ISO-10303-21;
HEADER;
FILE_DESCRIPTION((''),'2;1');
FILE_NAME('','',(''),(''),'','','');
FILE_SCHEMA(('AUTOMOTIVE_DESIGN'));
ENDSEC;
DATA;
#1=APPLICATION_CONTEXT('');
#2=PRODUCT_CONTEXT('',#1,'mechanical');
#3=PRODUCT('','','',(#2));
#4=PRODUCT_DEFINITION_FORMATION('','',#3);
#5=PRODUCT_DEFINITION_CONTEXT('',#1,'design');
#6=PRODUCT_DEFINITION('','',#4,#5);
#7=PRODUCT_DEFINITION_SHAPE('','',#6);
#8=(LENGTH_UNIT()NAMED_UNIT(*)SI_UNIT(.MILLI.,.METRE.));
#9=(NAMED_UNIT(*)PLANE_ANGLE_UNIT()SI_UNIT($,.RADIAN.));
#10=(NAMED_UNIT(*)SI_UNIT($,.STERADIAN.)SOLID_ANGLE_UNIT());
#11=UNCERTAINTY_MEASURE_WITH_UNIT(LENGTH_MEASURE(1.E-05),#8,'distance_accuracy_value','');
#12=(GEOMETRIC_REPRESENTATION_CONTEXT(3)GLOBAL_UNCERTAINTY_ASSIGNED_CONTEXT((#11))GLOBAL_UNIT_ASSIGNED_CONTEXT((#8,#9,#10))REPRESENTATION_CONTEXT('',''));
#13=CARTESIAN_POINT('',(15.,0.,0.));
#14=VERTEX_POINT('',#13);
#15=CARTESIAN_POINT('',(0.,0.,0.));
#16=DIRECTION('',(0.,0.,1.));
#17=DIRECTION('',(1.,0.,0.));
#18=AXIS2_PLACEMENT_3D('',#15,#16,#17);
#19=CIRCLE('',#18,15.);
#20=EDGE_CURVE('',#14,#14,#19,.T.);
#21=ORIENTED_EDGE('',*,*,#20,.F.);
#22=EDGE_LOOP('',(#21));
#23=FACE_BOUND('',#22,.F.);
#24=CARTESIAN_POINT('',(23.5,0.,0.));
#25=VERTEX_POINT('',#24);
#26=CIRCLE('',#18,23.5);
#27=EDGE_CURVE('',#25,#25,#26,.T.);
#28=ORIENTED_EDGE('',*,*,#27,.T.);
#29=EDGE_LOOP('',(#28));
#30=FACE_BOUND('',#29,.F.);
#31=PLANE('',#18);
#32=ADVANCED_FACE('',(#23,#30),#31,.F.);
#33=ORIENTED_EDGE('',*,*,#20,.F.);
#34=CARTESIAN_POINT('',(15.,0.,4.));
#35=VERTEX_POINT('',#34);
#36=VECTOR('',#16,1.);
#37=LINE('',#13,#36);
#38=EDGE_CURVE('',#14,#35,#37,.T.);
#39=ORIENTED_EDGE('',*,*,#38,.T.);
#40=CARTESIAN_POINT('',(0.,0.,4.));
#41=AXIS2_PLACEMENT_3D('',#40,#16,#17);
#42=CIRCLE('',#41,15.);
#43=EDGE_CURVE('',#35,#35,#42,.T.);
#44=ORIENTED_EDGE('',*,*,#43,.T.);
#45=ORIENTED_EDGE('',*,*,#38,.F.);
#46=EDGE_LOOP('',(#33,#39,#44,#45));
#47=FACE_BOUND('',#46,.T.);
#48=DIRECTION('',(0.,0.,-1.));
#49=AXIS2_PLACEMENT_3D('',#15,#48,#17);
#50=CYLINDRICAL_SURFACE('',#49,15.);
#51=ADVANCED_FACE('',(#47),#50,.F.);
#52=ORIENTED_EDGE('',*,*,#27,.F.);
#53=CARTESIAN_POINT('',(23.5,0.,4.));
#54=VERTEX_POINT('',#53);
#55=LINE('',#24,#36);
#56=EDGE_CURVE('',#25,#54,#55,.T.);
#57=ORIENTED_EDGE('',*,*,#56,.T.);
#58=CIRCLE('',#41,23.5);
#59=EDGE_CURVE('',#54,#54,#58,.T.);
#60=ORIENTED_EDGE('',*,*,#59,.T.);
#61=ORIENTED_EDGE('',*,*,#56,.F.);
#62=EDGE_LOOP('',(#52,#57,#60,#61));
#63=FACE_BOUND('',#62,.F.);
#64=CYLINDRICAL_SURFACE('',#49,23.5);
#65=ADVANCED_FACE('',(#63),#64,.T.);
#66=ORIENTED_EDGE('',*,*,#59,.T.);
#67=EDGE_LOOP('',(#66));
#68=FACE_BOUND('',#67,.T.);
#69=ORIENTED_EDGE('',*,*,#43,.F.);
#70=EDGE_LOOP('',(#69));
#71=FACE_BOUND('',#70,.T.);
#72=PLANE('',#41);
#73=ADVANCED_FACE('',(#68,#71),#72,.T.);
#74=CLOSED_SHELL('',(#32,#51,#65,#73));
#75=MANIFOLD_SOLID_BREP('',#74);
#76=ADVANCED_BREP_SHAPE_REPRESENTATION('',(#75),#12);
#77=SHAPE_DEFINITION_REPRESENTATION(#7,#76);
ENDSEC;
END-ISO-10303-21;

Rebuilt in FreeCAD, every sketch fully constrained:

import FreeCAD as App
import Part
import Sketcher
from FreeCAD import Vector
Q = App.Units.Quantity

doc = App.newDocument("Part")
body = doc.addObject("PartDesign::Body", "Body")

sketch1 = doc.addObject("Sketcher::SketchObject", "Sketch")
body.addObject(sketch1)
sketch1.AttachmentSupport = (doc.XY_Plane, [""])
sketch1.MapMode = "FlatFace"
sketch1.addGeometry([
    Part.Circle(Vector(0, 0, 0), Vector(0, 0, 1), 23.5),
    Part.Circle(Vector(0, 0, 0), Vector(0, 0, 1), 15),
], False)
sketch1.addConstraint([
    Sketcher.Constraint("Coincident", 0, 3, -1, 1),
    Sketcher.Constraint("Coincident", 1, 3, -1, 1),
    Sketcher.Constraint("Diameter", 0, Q("47 mm")),
    Sketcher.Constraint("Diameter", 1, Q("30 mm")),
])
pad1 = doc.addObject("PartDesign::Pad", "Pad")
body.addObject(pad1)
pad1.Profile = sketch1
pad1.Length = 4

doc.recompute()
